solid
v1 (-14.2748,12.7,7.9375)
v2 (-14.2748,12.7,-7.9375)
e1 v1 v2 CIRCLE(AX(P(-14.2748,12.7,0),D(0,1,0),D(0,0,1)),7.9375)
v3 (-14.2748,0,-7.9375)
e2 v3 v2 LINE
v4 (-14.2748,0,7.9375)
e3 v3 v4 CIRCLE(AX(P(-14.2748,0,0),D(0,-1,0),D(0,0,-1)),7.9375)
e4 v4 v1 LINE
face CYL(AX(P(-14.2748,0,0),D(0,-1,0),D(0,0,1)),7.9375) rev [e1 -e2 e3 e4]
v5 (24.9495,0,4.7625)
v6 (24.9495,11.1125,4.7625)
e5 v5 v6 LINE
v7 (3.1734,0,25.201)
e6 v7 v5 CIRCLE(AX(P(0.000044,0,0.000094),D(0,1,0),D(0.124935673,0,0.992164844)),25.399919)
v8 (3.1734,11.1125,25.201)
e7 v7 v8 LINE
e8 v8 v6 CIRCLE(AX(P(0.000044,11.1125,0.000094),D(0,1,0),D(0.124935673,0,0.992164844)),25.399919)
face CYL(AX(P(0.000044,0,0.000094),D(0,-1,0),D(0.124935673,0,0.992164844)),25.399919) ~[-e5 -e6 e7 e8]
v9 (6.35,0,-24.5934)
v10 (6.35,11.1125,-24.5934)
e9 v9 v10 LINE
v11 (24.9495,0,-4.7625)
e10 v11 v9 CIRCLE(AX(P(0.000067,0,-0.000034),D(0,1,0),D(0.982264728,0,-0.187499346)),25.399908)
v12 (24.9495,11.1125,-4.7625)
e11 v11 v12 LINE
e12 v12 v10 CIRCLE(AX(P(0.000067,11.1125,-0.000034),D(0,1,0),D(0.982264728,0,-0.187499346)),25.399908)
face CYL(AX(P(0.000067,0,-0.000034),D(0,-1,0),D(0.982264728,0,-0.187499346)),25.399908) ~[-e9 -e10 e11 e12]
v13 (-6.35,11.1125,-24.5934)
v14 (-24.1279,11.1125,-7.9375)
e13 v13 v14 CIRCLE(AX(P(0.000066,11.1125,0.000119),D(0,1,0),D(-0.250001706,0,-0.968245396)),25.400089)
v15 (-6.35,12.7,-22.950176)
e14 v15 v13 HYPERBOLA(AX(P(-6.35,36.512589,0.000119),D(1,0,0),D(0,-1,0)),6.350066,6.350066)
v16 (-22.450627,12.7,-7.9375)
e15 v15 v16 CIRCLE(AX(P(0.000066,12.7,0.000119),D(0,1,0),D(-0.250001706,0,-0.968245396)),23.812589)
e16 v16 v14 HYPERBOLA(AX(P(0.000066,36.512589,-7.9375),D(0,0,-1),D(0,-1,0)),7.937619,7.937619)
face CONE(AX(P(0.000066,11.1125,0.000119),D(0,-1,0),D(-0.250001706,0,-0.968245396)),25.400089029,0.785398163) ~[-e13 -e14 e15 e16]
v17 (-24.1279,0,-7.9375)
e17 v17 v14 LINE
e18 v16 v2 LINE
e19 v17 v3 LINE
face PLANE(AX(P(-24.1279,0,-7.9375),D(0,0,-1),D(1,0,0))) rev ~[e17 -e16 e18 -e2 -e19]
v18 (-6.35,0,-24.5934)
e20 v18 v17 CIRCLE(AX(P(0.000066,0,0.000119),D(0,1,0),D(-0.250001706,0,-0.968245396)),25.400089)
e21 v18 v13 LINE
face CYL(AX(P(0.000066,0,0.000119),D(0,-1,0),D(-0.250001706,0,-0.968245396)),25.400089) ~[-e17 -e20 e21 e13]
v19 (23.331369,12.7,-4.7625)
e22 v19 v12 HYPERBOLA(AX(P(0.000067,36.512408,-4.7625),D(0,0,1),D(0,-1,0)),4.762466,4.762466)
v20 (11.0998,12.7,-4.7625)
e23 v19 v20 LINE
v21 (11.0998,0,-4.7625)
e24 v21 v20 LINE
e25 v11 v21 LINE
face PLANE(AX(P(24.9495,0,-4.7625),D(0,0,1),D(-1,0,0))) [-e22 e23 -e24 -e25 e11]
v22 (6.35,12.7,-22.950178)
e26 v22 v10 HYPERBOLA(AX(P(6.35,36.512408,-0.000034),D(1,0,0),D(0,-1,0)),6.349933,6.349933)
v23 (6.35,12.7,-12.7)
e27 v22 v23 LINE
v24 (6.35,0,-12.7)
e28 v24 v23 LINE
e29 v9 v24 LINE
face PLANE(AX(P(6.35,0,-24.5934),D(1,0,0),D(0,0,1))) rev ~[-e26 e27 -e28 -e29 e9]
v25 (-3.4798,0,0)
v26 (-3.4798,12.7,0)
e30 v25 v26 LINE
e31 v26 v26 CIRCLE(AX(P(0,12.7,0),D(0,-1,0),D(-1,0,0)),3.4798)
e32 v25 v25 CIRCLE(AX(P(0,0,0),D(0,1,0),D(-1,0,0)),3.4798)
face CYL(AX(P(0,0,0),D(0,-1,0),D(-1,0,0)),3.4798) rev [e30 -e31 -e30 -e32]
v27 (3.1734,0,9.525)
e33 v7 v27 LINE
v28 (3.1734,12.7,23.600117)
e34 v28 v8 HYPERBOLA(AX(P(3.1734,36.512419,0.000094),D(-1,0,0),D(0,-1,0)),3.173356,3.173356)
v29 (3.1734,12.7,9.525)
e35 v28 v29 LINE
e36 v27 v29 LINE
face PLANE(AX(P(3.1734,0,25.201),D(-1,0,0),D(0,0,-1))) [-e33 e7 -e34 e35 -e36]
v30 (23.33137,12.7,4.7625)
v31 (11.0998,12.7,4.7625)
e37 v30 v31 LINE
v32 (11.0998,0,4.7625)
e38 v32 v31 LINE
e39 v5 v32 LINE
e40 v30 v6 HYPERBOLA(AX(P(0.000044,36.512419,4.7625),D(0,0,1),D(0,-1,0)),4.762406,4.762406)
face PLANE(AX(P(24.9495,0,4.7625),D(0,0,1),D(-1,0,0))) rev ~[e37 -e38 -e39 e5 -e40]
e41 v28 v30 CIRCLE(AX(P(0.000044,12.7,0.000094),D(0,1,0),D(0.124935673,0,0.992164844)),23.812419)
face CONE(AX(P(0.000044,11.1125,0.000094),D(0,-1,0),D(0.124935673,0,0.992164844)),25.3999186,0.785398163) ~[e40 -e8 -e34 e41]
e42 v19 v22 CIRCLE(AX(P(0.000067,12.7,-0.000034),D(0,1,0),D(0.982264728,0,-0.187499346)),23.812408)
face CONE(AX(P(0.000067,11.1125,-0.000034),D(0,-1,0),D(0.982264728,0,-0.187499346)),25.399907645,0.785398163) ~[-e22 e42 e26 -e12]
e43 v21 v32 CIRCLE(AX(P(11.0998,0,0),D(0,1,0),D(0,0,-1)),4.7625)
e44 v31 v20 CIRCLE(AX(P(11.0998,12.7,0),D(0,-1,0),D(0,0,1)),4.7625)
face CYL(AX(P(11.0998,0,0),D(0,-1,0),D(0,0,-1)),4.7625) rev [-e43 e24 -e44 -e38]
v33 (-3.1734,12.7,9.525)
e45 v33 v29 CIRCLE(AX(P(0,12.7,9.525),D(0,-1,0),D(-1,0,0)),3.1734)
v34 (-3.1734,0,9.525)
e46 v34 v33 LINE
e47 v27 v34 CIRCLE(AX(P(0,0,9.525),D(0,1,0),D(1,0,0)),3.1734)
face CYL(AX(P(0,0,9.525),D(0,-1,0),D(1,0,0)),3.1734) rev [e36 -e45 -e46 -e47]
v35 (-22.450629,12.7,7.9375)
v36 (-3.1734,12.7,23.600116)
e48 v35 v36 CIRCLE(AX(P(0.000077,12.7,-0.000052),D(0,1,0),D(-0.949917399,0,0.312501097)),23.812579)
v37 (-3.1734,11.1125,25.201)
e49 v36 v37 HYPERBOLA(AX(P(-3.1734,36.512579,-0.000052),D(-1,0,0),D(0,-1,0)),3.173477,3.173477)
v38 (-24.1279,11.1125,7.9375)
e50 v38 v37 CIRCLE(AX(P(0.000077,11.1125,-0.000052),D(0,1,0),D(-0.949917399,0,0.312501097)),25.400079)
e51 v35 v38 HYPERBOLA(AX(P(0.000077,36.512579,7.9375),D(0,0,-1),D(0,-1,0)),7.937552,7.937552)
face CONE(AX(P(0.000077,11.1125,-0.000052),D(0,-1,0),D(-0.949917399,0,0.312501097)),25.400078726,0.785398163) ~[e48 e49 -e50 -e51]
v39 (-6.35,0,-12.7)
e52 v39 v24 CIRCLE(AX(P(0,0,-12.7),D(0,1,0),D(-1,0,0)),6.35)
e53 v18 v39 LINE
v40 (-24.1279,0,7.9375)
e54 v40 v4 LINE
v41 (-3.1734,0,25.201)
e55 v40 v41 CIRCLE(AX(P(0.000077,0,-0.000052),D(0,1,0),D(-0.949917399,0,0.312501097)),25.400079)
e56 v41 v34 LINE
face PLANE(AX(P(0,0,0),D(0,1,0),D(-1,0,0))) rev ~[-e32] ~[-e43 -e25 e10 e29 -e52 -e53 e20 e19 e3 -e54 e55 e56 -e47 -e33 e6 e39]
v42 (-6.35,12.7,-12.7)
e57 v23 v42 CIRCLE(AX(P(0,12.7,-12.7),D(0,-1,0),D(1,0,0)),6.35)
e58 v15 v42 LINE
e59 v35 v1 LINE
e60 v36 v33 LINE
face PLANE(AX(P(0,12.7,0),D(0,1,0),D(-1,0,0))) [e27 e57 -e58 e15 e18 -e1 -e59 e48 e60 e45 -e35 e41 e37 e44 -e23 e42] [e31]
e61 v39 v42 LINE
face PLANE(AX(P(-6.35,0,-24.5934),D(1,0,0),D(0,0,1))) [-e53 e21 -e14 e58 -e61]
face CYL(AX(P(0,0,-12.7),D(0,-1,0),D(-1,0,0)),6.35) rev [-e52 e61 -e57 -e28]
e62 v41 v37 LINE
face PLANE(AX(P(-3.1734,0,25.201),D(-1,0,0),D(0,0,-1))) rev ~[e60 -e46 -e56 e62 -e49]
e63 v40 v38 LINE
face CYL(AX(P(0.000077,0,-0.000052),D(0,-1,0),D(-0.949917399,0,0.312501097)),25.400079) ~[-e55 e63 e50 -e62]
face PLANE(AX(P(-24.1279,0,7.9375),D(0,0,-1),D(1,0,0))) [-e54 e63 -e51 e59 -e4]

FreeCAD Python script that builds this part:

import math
import FreeCAD as App
import Part
import Sketcher
from FreeCAD import Vector
Q = App.Units.Quantity


def edges_at(feature, points):
    """Names of the edges that pass closest to the given points."""
    edges = feature.Shape.Edges
    near = lambda p: min(range(len(edges)), key=lambda i: edges[i].distToShape(Part.Vertex(*p))[0])
    return sorted({f"Edge{near(p) + 1}" for p in points})

doc = App.newDocument("Part")
body = doc.addObject("PartDesign::Body", "Body")

sketch1 = body.newObject("Sketcher::SketchObject", "Sketch")
sketch1.AttachmentSupport = (doc.getObject("XZ_Plane"), [""])
sketch1.MapMode = "FlatFace"
sketch1.addGeometry(Part.ArcOfCircle(Part.Circle(Vector(-14.2748, 0, 0), Vector(0, 0, 1), 7.9375), math.radians(-90), math.radians(90)), False)
sketch1.addGeometry(Part.LineSegment(Vector(-14.2748, 7.9375, 0), Vector(-24.1279, 7.9375, 0)), False)
sketch1.addGeometry(Part.ArcOfCircle(Part.Circle(Vector(0, 0, 0), Vector(0, 0, 1), 25.400017), math.radians(97.177113), math.radians(161.790035)), False)
sketch1.addGeometry(Part.LineSegment(Vector(-3.1734, 25.201, 0), Vector(-3.1734, 9.525, 0)), False)
sketch1.addGeometry(Part.ArcOfCircle(Part.Circle(Vector(0, 9.525, 0), Vector(0, 0, 1), 3.1734), math.radians(180), math.radians(360)), False)
sketch1.addGeometry(Part.LineSegment(Vector(3.1734, 9.525, 0), Vector(3.1734, 25.201, 0)), False)
sketch1.addGeometry(Part.ArcOfCircle(Part.Circle(Vector(0, 0, 0), Vector(0, 0, 1), 25.399957), math.radians(10.806932), math.radians(82.822887)), False)
sketch1.addGeometry(Part.LineSegment(Vector(24.9495, 4.7625, 0), Vector(11.0998, 4.7625, 0)), False)
sketch1.addGeometry(Part.ArcOfCircle(Part.Circle(Vector(11.0998, 0, 0), Vector(0, 0, 1), 4.7625), math.radians(90), math.radians(270)), False)
sketch1.addGeometry(Part.LineSegment(Vector(11.0998, -4.7625, 0), Vector(24.9495, -4.7625, 0)), False)
sketch1.addGeometry(Part.ArcOfCircle(Part.Circle(Vector(0, 0, 0), Vector(0, 0, 1), 25.399957), math.radians(-75.522463), math.radians(-10.806932)), False)
sketch1.addGeometry(Part.LineSegment(Vector(6.35, -24.5934, 0), Vector(6.35, -12.7, 0)), False)
sketch1.addGeometry(Part.ArcOfCircle(Part.Circle(Vector(0, -12.7, 0), Vector(0, 0, 1), 6.35), math.radians(0), math.radians(180)), False)
sketch1.addGeometry(Part.LineSegment(Vector(-6.35, -12.7, 0), Vector(-6.35, -24.5934, 0)), False)
sketch1.addGeometry(Part.ArcOfCircle(Part.Circle(Vector(0, 0, 0), Vector(0, 0, 1), 25.400017), math.radians(-161.790035), math.radians(-104.477537)), False)
sketch1.addGeometry(Part.LineSegment(Vector(-24.1279, -7.9375, 0), Vector(-14.2748, -7.9375, 0)), False)
sketch1.addGeometry(Part.Circle(Vector(0, 0, 0), Vector(0, 0, 1), 3.4798), False)
sketch1.addConstraint(Sketcher.Constraint("Tangent", 0, 2, 1, 1))
sketch1.addConstraint(Sketcher.Constraint("Coincident", 1, 2, 2, 2))
sketch1.addConstraint(Sketcher.Constraint("Coincident", 2, 1, 3, 1))
sketch1.addConstraint(Sketcher.Constraint("Tangent", 3, 2, 4, 1))
sketch1.addConstraint(Sketcher.Constraint("Tangent", 4, 2, 5, 1))
sketch1.addConstraint(Sketcher.Constraint("Coincident", 5, 2, 6, 2))
sketch1.addConstraint(Sketcher.Constraint("Coincident", 6, 1, 7, 1))
sketch1.addConstraint(Sketcher.Constraint("Tangent", 7, 2, 8, 1))
sketch1.addConstraint(Sketcher.Constraint("Tangent", 8, 2, 9, 1))
sketch1.addConstraint(Sketcher.Constraint("Coincident", 9, 2, 10, 2))
sketch1.addConstraint(Sketcher.Constraint("Coincident", 10, 1, 11, 1))
sketch1.addConstraint(Sketcher.Constraint("Tangent", 11, 2, 12, 1))
sketch1.addConstraint(Sketcher.Constraint("Tangent", 12, 2, 13, 1))
sketch1.addConstraint(Sketcher.Constraint("Coincident", 13, 2, 14, 2))
sketch1.addConstraint(Sketcher.Constraint("Coincident", 14, 1, 15, 1))
sketch1.addConstraint(Sketcher.Constraint("Tangent", 15, 2, 0, 1))
sketch1.addConstraint(Sketcher.Constraint("Horizontal", 1))
sketch1.addConstraint(Sketcher.Constraint("Vertical", 3))
sketch1.addConstraint(Sketcher.Constraint("Vertical", 5))
sketch1.addConstraint(Sketcher.Constraint("Horizontal", 7))
sketch1.addConstraint(Sketcher.Constraint("Horizontal", 9))
sketch1.addConstraint(Sketcher.Constraint("Vertical", 11))
sketch1.addConstraint(Sketcher.Constraint("Vertical", 13))
sketch1.addConstraint(Sketcher.Constraint("Horizontal", 15))
sketch1.addConstraint(Sketcher.Constraint("Coincident", 2, 3, -1, 1))
sketch1.addConstraint(Sketcher.Constraint("Coincident", 6, 3, -1, 1))
sketch1.addConstraint(Sketcher.Constraint("Coincident", 10, 3, -1, 1))
sketch1.addConstraint(Sketcher.Constraint("Coincident", 14, 3, -1, 1))
sketch1.addConstraint(Sketcher.Constraint("Coincident", 16, 3, -1, 1))
sketch1.addConstraint(Sketcher.Constraint("Equal", 2, 6))
sketch1.addConstraint(Sketcher.Constraint("Equal", 6, 10))
sketch1.addConstraint(Sketcher.Constraint("Equal", 10, 14))
sketch1.addConstraint(Sketcher.Constraint("PointOnObject", 0, 3, -1))
sketch1.addConstraint(Sketcher.Constraint("PointOnObject", 4, 3, -2))
sketch1.addConstraint(Sketcher.Constraint("PointOnObject", 8, 3, -1))
sketch1.addConstraint(Sketcher.Constraint("PointOnObject", 12, 3, -2))
sketch1.addConstraint(Sketcher.Constraint("Radius", 2, Q("1 in")))
sketch1.addConstraint(Sketcher.Constraint("Radius", 12, Q("0.25 in")))
sketch1.addConstraint(Sketcher.Constraint("Diameter", 16, Q("0.274 in")))
sketch1.addConstraint(Sketcher.Constraint("Radius", 0, Q("0.3125 in")))
sketch1.addConstraint(Sketcher.Constraint("Radius", 8, Q("0.1875 in")))
sketch1.addConstraint(Sketcher.Constraint("DistanceY", 12, 3, -1, 1, Q("0.5 in")))
sketch1.addConstraint(Sketcher.Constraint("Radius", 4, 3.1734))
sketch1.addConstraint(Sketcher.Constraint("DistanceX", 0, 3, -1, 1, Q("0.562 in")))
sketch1.addConstraint(Sketcher.Constraint("DistanceY", -1, 1, 4, 3, Q("0.375 in")))
sketch1.addConstraint(Sketcher.Constraint("DistanceX", -1, 1, 8, 3, Q("0.437 in")))
pad1 = body.newObject("PartDesign::Pad", "Pad")
pad1.Profile = sketch1
pad1.Length = Q("0.5 in")
pad1.Reversed = True
doc.recompute()

chamfer = body.newObject("PartDesign::Chamfer", "Chamfer")
chamfer.Base = (pad1, edges_at(pad1, [
    (-16.151, 12.7, 19.604),
    (-17.366, 12.7, -18.536),
    (18.526, 12.7, -17.376),
    (17.383, 12.7, 18.52),
]))
chamfer.Size = Q("0.0625 in")

doc.recompute()
